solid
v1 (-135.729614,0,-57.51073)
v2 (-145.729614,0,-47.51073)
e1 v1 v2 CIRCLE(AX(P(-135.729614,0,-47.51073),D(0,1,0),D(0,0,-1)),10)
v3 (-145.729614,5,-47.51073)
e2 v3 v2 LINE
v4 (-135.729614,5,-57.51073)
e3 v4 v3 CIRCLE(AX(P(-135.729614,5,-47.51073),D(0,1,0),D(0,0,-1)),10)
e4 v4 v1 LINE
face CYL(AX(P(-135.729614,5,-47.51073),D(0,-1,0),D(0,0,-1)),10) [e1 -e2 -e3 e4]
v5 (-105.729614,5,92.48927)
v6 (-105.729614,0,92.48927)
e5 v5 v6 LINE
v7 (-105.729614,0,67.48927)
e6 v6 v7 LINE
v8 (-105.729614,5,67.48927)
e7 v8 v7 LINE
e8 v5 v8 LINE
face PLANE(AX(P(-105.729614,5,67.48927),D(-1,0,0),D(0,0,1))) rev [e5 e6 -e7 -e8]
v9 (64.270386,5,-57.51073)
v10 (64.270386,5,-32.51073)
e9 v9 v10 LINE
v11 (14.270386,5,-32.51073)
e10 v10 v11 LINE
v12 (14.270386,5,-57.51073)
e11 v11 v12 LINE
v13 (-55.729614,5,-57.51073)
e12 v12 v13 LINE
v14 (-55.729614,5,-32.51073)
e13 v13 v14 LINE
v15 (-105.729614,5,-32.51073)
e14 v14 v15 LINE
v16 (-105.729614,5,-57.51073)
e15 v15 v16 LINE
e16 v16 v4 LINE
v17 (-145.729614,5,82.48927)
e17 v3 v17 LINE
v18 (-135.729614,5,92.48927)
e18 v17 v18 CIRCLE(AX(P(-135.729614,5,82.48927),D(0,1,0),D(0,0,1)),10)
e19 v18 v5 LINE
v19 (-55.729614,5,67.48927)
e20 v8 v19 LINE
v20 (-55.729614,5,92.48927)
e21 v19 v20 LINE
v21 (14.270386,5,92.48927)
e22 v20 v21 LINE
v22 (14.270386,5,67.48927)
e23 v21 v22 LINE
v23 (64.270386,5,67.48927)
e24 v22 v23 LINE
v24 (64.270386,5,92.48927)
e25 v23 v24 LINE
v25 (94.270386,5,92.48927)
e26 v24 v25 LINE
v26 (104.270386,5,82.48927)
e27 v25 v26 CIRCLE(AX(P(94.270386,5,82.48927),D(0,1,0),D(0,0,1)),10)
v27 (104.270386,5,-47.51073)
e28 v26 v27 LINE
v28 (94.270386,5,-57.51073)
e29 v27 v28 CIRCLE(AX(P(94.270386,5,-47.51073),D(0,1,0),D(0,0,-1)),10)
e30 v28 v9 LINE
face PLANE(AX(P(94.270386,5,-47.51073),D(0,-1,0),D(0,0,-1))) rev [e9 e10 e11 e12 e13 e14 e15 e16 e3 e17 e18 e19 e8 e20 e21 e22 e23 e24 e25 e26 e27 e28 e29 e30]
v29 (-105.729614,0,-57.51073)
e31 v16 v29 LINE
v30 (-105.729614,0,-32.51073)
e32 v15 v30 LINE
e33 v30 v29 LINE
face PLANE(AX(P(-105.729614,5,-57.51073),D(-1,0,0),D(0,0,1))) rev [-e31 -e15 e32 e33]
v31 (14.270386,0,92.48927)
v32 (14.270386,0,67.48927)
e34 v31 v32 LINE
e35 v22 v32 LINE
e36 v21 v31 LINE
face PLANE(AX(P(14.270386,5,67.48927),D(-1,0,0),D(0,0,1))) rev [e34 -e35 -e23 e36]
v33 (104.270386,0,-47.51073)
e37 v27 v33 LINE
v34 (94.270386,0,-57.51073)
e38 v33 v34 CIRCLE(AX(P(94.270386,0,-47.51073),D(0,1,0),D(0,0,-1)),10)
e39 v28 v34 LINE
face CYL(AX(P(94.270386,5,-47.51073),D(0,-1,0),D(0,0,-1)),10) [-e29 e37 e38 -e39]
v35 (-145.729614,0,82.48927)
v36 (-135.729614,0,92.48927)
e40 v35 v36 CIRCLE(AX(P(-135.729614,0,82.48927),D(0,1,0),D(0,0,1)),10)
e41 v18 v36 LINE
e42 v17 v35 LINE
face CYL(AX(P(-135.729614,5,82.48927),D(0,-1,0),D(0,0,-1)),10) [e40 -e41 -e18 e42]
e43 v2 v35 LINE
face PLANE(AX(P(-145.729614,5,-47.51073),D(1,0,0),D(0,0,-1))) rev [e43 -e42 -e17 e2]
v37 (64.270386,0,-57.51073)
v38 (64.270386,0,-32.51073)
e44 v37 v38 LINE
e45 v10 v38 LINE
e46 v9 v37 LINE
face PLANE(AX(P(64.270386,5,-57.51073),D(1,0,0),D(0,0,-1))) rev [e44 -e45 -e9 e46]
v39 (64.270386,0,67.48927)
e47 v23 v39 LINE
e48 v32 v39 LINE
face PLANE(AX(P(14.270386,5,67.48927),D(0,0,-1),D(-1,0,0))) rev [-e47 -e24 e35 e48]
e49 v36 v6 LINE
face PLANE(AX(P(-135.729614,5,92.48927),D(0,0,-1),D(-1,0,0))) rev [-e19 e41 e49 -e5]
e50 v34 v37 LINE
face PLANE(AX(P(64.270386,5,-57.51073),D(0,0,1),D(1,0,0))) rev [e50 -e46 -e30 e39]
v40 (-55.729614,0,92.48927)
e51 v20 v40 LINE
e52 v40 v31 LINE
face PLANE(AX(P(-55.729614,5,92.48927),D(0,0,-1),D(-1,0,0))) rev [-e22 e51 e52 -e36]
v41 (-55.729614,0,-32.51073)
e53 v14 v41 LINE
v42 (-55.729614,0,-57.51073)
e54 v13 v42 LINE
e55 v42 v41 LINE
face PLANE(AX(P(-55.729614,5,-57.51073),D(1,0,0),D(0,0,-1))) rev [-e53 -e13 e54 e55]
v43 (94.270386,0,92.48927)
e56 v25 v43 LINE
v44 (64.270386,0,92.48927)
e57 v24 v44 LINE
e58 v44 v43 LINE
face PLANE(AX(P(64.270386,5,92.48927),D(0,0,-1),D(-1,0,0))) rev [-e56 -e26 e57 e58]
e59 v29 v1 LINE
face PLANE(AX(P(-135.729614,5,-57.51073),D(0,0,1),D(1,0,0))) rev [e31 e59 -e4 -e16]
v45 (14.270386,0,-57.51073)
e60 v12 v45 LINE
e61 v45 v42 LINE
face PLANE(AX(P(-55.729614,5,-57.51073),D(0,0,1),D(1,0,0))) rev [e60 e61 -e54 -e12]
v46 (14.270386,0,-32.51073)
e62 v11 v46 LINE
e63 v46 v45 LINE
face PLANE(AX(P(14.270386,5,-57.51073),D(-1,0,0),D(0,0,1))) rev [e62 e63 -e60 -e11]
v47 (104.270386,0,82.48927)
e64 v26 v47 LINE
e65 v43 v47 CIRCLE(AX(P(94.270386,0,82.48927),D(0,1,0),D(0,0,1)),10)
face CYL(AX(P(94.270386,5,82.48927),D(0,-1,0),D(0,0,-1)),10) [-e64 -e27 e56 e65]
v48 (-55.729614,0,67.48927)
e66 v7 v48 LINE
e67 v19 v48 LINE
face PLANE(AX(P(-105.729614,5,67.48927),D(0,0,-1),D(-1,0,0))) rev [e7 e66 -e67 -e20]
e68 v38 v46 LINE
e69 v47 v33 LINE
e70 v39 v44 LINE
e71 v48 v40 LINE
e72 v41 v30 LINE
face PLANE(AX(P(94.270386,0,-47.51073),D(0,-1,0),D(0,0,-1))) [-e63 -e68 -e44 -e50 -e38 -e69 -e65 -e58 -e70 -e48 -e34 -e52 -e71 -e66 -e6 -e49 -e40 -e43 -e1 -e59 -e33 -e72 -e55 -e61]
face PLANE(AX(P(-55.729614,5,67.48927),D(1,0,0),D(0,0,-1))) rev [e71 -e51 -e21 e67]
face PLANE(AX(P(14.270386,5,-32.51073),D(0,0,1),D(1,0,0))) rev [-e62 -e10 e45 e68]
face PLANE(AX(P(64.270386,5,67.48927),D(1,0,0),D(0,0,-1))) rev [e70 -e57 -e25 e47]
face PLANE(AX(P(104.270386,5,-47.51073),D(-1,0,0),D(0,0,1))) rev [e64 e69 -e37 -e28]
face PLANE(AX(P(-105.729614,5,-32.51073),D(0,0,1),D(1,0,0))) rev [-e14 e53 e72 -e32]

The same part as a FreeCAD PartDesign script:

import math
import FreeCAD as App
import Part
import Sketcher
from FreeCAD import Vector

doc = App.newDocument("Part")
body = doc.addObject("PartDesign::Body", "Body")

# Sketch on XZ plane
sketch1 = body.newObject("Sketcher::SketchObject", "Sketch")
sketch1.AttachmentSupport = (doc.getObject("XZ_Plane"), [""])
sketch1.MapMode = "FlatFace"
sketch1.addGeometry([
    Part.LineSegment(Vector(94.270386, -57.51073, 0), Vector(64.270386, -57.51073, 0)),  # 0
    Part.LineSegment(Vector(64.270386, -57.51073, 0), Vector(64.270386, -32.51073, 0)),  # 1
    Part.LineSegment(Vector(64.270386, -32.51073, 0), Vector(14.270386, -32.51073, 0)),  # 2
    Part.LineSegment(Vector(14.270386, -32.51073, 0), Vector(14.270386, -57.51073, 0)),  # 3
    Part.LineSegment(Vector(14.270386, -57.51073, 0), Vector(-55.729614, -57.51073, 0)),  # 4
    Part.LineSegment(Vector(-55.729614, -57.51073, 0), Vector(-55.729614, -32.51073, 0)),  # 5
    Part.LineSegment(Vector(-55.729614, -32.51073, 0), Vector(-105.729614, -32.51073, 0)),  # 6
    Part.LineSegment(Vector(-105.729614, -32.51073, 0), Vector(-105.729614, -57.51073, 0)),  # 7
    Part.LineSegment(Vector(-105.729614, -57.51073, 0), Vector(-135.729614, -57.51073, 0)),  # 8
    Part.ArcOfCircle(Part.Circle(Vector(-135.729614, -47.51073, 0), Vector(0, 0, 1), 10), math.radians(180), math.radians(270)),  # 9
    Part.LineSegment(Vector(-145.729614, -47.51073, 0), Vector(-145.729614, 82.48927, 0)),  # 10
    Part.ArcOfCircle(Part.Circle(Vector(-135.729614, 82.48927, 0), Vector(0, 0, 1), 10), math.radians(90), math.radians(180)),  # 11
    Part.LineSegment(Vector(-135.729614, 92.48927, 0), Vector(-105.729614, 92.48927, 0)),  # 12
    Part.LineSegment(Vector(-105.729614, 92.48927, 0), Vector(-105.729614, 67.48927, 0)),  # 13
    Part.LineSegment(Vector(-105.729614, 67.48927, 0), Vector(-55.729614, 67.48927, 0)),  # 14
    Part.LineSegment(Vector(-55.729614, 67.48927, 0), Vector(-55.729614, 92.48927, 0)),  # 15
    Part.LineSegment(Vector(-55.729614, 92.48927, 0), Vector(14.270386, 92.48927, 0)),  # 16
    Part.LineSegment(Vector(14.270386, 92.48927, 0), Vector(14.270386, 67.48927, 0)),  # 17
    Part.LineSegment(Vector(14.270386, 67.48927, 0), Vector(64.270386, 67.48927, 0)),  # 18
    Part.LineSegment(Vector(64.270386, 67.48927, 0), Vector(64.270386, 92.48927, 0)),  # 19
    Part.LineSegment(Vector(64.270386, 92.48927, 0), Vector(94.270386, 92.48927, 0)),  # 20
    Part.ArcOfCircle(Part.Circle(Vector(94.270386, 82.48927, 0), Vector(0, 0, 1), 10), math.radians(0), math.radians(90)),  # 21
    Part.LineSegment(Vector(104.270386, 82.48927, 0), Vector(104.270386, -47.51073, 0)),  # 22
    Part.ArcOfCircle(Part.Circle(Vector(94.270386, -47.51073, 0), Vector(0, 0, 1), 10), math.radians(-90), math.radians(0)),  # 23
], False)
sketch1.addConstraint([
    Sketcher.Constraint("Coincident", 0, 2, 1, 1),
    Sketcher.Constraint("Coincident", 1, 2, 2, 1),
    Sketcher.Constraint("Coincident", 2, 2, 3, 1),
    Sketcher.Constraint("Coincident", 3, 2, 4, 1),
    Sketcher.Constraint("Coincident", 4, 2, 5, 1),
    Sketcher.Constraint("Coincident", 5, 2, 6, 1),
    Sketcher.Constraint("Coincident", 6, 2, 7, 1),
    Sketcher.Constraint("Coincident", 7, 2, 8, 1),
    Sketcher.Constraint("Tangent", 8, 2, 9, 2),
    Sketcher.Constraint("Tangent", 9, 1, 10, 1),
    Sketcher.Constraint("Tangent", 10, 2, 11, 2),
    Sketcher.Constraint("Tangent", 11, 1, 12, 1),
    Sketcher.Constraint("Coincident", 12, 2, 13, 1),
    Sketcher.Constraint("Coincident", 13, 2, 14, 1),
    Sketcher.Constraint("Coincident", 14, 2, 15, 1),
    Sketcher.Constraint("Coincident", 15, 2, 16, 1),
    Sketcher.Constraint("Coincident", 16, 2, 17, 1),
    Sketcher.Constraint("Coincident", 17, 2, 18, 1),
    Sketcher.Constraint("Coincident", 18, 2, 19, 1),
    Sketcher.Constraint("Coincident", 19, 2, 20, 1),
    Sketcher.Constraint("Tangent", 20, 2, 21, 2),
    Sketcher.Constraint("Tangent", 21, 1, 22, 1),
    Sketcher.Constraint("Tangent", 22, 2, 23, 2),
    Sketcher.Constraint("Tangent", 23, 1, 0, 1),
    Sketcher.Constraint("Horizontal", 0),
    Sketcher.Constraint("Vertical", 1),
    Sketcher.Constraint("Horizontal", 2),
    Sketcher.Constraint("Vertical", 3),
    Sketcher.Constraint("Horizontal", 4),
    Sketcher.Constraint("Vertical", 5),
    Sketcher.Constraint("Horizontal", 6),
    Sketcher.Constraint("Vertical", 7),
    Sketcher.Constraint("Horizontal", 8),
    Sketcher.Constraint("Vertical", 10),
    Sketcher.Constraint("Horizontal", 12),
    Sketcher.Constraint("Vertical", 13),
    Sketcher.Constraint("Horizontal", 14),
    Sketcher.Constraint("Vertical", 15),
    Sketcher.Constraint("Horizontal", 16),
    Sketcher.Constraint("Vertical", 17),
    Sketcher.Constraint("Horizontal", 18),
    Sketcher.Constraint("Vertical", 19),
    Sketcher.Constraint("Horizontal", 20),
    Sketcher.Constraint("Vertical", 22),
    Sketcher.Constraint("Equal", 9, 11),
    Sketcher.Constraint("Equal", 11, 21),
    Sketcher.Constraint("Equal", 21, 23),
    Sketcher.Constraint("Horizontal", 11, 3, 21, 3),
    Sketcher.Constraint("Horizontal", 9, 3, 23, 3),
    Sketcher.Constraint("Horizontal", 0, 2, 3, 2),
    Sketcher.Constraint("Horizontal", 2, 2, 5, 2),
    Sketcher.Constraint("Horizontal", 12, 2, 15, 2),
    Sketcher.Constraint("Horizontal", 14, 2, 17, 2),
    Sketcher.Constraint("Vertical", 7, 2, 12, 2),
    Sketcher.Constraint("Vertical", 5, 2, 14, 2),
    Sketcher.Constraint("Vertical", 3, 2, 16, 2),
    Sketcher.Constraint("Vertical", 1, 2, 18, 2),
    Sketcher.Constraint("Equal", 2, 6),
    Sketcher.Constraint("Equal", 0, 8),
    Sketcher.Constraint("Equal", 7, 13),
    Sketcher.Constraint("Radius", 9, 10.0),
    Sketcher.Constraint("DistanceX", 0, 2, 0, 1, 30.0),
    Sketcher.Constraint("DistanceX", 2, 2, 2, 1, 50.0),
    Sketcher.Constraint("DistanceX", 4, 2, 4, 1, 70.0),
    Sketcher.Constraint("DistanceY", 1, 1, 1, 2, 25.0),
    Sketcher.Constraint("DistanceY", 10, 1, 10, 2, 130.0),
    Sketcher.Constraint("DistanceY", 9, 3, -1, 1, 47.51073),
    Sketcher.Constraint("DistanceX", 9, 3, -1, 1, 135.729614),
])
pad1 = body.newObject("PartDesign::Pad", "Pad")
pad1.Profile = sketch1
pad1.Length = 5
pad1.Reversed = True

doc.recompute()
